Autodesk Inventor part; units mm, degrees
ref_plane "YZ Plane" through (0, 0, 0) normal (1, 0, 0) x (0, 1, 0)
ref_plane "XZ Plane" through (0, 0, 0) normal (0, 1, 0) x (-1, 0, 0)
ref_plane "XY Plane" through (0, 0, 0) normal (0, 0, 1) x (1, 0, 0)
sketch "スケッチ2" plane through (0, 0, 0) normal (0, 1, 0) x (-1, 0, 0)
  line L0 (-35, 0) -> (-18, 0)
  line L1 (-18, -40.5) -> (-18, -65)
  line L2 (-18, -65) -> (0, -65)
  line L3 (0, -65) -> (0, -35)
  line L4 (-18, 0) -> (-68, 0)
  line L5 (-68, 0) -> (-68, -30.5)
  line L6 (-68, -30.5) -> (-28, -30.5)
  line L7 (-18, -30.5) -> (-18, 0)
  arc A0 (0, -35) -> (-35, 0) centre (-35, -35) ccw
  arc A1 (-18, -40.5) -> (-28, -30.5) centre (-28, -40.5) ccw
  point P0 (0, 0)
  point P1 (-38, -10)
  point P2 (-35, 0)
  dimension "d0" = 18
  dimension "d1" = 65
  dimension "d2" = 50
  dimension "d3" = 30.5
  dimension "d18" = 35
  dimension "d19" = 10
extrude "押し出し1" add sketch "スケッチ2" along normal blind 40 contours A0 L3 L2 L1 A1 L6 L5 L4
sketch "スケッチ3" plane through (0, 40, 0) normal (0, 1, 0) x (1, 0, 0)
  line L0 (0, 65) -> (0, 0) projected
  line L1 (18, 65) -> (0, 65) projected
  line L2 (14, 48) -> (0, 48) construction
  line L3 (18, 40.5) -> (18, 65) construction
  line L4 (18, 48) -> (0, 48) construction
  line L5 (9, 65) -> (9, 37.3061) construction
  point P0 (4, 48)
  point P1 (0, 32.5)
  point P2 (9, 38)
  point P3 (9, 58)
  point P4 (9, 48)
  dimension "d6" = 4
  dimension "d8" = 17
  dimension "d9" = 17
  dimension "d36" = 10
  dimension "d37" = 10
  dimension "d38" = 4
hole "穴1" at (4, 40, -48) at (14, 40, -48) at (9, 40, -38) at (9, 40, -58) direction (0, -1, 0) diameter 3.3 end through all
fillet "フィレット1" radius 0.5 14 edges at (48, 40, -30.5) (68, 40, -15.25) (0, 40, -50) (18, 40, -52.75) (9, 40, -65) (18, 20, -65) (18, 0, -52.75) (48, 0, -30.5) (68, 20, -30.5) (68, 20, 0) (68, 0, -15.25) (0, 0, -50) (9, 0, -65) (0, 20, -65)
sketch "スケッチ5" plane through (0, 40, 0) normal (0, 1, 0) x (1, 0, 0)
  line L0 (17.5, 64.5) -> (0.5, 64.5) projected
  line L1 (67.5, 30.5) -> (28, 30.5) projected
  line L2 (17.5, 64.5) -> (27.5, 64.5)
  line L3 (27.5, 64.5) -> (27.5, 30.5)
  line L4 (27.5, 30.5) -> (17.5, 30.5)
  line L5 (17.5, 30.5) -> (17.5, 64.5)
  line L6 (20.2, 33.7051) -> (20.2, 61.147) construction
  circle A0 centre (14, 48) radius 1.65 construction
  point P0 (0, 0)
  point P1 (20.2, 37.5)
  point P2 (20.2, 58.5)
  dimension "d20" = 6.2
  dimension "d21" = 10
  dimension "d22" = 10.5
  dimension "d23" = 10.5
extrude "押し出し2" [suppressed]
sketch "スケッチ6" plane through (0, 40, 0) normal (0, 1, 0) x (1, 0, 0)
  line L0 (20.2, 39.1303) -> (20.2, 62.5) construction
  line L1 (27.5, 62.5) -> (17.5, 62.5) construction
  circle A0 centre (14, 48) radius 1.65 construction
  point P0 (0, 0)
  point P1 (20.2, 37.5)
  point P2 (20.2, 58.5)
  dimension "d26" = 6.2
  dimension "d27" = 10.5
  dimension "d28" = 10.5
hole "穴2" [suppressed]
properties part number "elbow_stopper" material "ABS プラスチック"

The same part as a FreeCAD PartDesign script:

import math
import FreeCAD as App
import Part
import Sketcher
from FreeCAD import Vector


def edges_at(feature, points):
    """Names of the edges that pass closest to the given points."""
    edges = feature.Shape.Edges
    near = lambda p: min(range(len(edges)), key=lambda i: edges[i].distToShape(Part.Vertex(*p))[0])
    return sorted({f"Edge{near(p) + 1}" for p in points})

doc = App.newDocument("Part")
body = doc.addObject("PartDesign::Body", "Body")

sketch1 = body.newObject("Sketcher::SketchObject", "Sketch")
sketch1.AttachmentSupport = (doc.getObject("XZ_Plane"), [""])
sketch1.MapMode = "FlatFace"
sketch1.addGeometry(Part.ArcOfCircle(Part.Circle(Vector(35, -35, 0), Vector(0, 0, 1), 35), math.radians(90), math.radians(180)), False)
sketch1.addGeometry(Part.LineSegment(Vector(35, 0, 0), Vector(68, 0, 0)), False)
sketch1.addGeometry(Part.LineSegment(Vector(68, 0, 0), Vector(68, -30, 0)), False)
sketch1.addGeometry(Part.LineSegment(Vector(68, -30, 0), Vector(28, -30, 0)), False)
sketch1.addGeometry(Part.ArcOfCircle(Part.Circle(Vector(28, -40, 0), Vector(0, 0, 1), 10), math.radians(90), math.radians(180)), False)
sketch1.addGeometry(Part.LineSegment(Vector(18, -40, 0), Vector(18, -65, 0)), False)
sketch1.addGeometry(Part.LineSegment(Vector(18, -65, 0), Vector(0, -65, 0)), False)
sketch1.addGeometry(Part.LineSegment(Vector(0, -65, 0), Vector(0, -35, 0)), False)
sketch1.addConstraint(Sketcher.Constraint("Tangent", 0, 1, 1, 1))
sketch1.addConstraint(Sketcher.Constraint("Coincident", 1, 2, 2, 1))
sketch1.addConstraint(Sketcher.Constraint("Coincident", 2, 2, 3, 1))
sketch1.addConstraint(Sketcher.Constraint("Tangent", 3, 2, 4, 1))
sketch1.addConstraint(Sketcher.Constraint("Tangent", 4, 2, 5, 1))
sketch1.addConstraint(Sketcher.Constraint("Coincident", 5, 2, 6, 1))
sketch1.addConstraint(Sketcher.Constraint("Coincident", 6, 2, 7, 1))
sketch1.addConstraint(Sketcher.Constraint("Tangent", 7, 2, 0, 2))
sketch1.addConstraint(Sketcher.Constraint("Horizontal", 1))
sketch1.addConstraint(Sketcher.Constraint("Vertical", 2))
sketch1.addConstraint(Sketcher.Constraint("Horizontal", 3))
sketch1.addConstraint(Sketcher.Constraint("Vertical", 5))
sketch1.addConstraint(Sketcher.Constraint("Horizontal", 6))
sketch1.addConstraint(Sketcher.Constraint("Vertical", 7))
sketch1.addConstraint(Sketcher.Constraint("PointOnObject", 0, 1, -1))
sketch1.addConstraint(Sketcher.Constraint("PointOnObject", 6, 2, -2))
sketch1.addConstraint(Sketcher.Constraint("Radius", 0, 35.0))
sketch1.addConstraint(Sketcher.Constraint("Radius", 4, 10.0))
sketch1.addConstraint(Sketcher.Constraint("DistanceX", 6, 2, 6, 1, 18.0))
sketch1.addConstraint(Sketcher.Constraint("DistanceY", 2, 2, 2, 1, 30.5))
sketch1.addConstraint(Sketcher.Constraint("DistanceY", 5, 2, -1, 1, 65.0))
sketch1.addConstraint(Sketcher.Constraint("DistanceX", 4, 2, 2, 2, 50.0))
pad1 = body.newObject("PartDesign::Pad", "Pad")
pad1.Profile = sketch1
pad1.Length = 40
pad1.Reversed = True

sketch2 = body.newObject("Sketcher::SketchObject", "Sketch001")
sketch2.AttachmentSupport = (doc.getObject("XZ_Plane"), [""])
sketch2.MapMode = "FlatFace"
sketch2.AttachmentOffset = App.Placement(Vector(0, 0, -40), App.Rotation())
sketch2.addGeometry(Part.Circle(Vector(4, -48, 0), Vector(0, 0, 1), 1.6), False)
sketch2.addGeometry(Part.Circle(Vector(14, -48, 0), Vector(0, 0, 1), 1.6), False)
sketch2.addGeometry(Part.Circle(Vector(9, -38, 0), Vector(0, 0, 1), 1.6), False)
sketch2.addGeometry(Part.Circle(Vector(9, -58, 0), Vector(0, 0, 1), 1.6), False)
sketch2.addConstraint(Sketcher.Constraint("Equal", 0, 1))
sketch2.addConstraint(Sketcher.Constraint("Equal", 1, 2))
sketch2.addConstraint(Sketcher.Constraint("Equal", 2, 3))
sketch2.addConstraint(Sketcher.Constraint("Horizontal", 0, 3, 1, 3))
sketch2.addConstraint(Sketcher.Constraint("Vertical", 2, 3, 3, 3))
sketch2.addConstraint(Sketcher.Constraint("Diameter", 0, 3.3))
sketch2.addConstraint(Sketcher.Constraint("DistanceX", -1, 1, 0, 3, 4.0))
sketch2.addConstraint(Sketcher.Constraint("DistanceY", 0, 3, -1, 1, 48.0))
sketch2.addConstraint(Sketcher.Constraint("DistanceX", -1, 1, 1, 3, 14.0))
sketch2.addConstraint(Sketcher.Constraint("DistanceX", -1, 1, 2, 3, 9.0))
sketch2.addConstraint(Sketcher.Constraint("DistanceY", 2, 3, -1, 1, 38.0))
sketch2.addConstraint(Sketcher.Constraint("DistanceY", 3, 3, -1, 1, 58.0))
doc.recompute()
hole = body.newObject("PartDesign::Hole", "Hole")
hole.Profile = sketch2
hole.ThreadType = "None"
hole.Diameter = 3.3
hole.DepthType = "ThroughAll"
hole.Reversed = True
doc.recompute()

fillet = body.newObject("PartDesign::Fillet", "Fillet")
fillet.Base = (hole, edges_at(hole, [
    (48, 40, -30.5),
    (68, 40, -15.25),
    (0, 40, -50),
    (18, 40, -52.75),
    (9, 40, -65),
    (18, 20, -65),
    (18, 0, -52.75),
    (48, 0, -30.5),
    (68, 20, -30.5),
    (68, 20, 0),
    (68, 0, -15.25),
    (0, 0, -50),
    (9, 0, -65),
    (0, 20, -65),
]))
fillet.Radius = 0.5

doc.recompute()
